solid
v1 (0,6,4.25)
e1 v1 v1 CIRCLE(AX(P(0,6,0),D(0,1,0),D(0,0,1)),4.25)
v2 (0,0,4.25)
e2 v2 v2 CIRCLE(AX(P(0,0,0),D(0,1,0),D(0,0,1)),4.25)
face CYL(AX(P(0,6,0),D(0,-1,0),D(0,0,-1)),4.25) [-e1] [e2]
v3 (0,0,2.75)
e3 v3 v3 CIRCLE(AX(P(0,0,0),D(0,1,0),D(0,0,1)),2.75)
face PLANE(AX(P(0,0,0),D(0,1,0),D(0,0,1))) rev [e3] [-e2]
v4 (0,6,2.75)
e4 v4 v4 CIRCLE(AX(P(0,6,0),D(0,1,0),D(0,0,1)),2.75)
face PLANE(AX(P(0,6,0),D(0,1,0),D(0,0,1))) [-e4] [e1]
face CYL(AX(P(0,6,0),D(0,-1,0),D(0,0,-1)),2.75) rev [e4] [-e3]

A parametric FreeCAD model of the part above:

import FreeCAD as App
import Part
import Sketcher

V = App.Vector
Q = App.Units.Quantity

doc = App.newDocument("Part")
body = doc.addObject("PartDesign::Body", "Body")

sketch1 = body.newObject("Sketcher::SketchObject", "Sketch")
sketch1.AttachmentSupport = (doc.getObject("XZ_Plane"), [""])
sketch1.MapMode = "FlatFace"
sketch1.addGeometry([
    Part.Circle(V(0, 0, 0), V(0, 0, 1), 4.2),
    Part.Circle(V(0, 0, 0), V(0, 0, 1), 2.8),
], False)
sketch1.addConstraint([
    Sketcher.Constraint("Coincident", 0, 3, -1, 1),
    Sketcher.Constraint("Coincident", 1, 3, -1, 1),
    Sketcher.Constraint("Diameter", 0, Q("8.5 mm")),
    Sketcher.Constraint("Diameter", 1, Q("5.5 mm")),
])
pad1 = body.newObject("PartDesign::Pad", "Pad")
pad1.Profile = sketch1
pad1.Length = 6
pad1.Reversed = True

doc.recompute()
